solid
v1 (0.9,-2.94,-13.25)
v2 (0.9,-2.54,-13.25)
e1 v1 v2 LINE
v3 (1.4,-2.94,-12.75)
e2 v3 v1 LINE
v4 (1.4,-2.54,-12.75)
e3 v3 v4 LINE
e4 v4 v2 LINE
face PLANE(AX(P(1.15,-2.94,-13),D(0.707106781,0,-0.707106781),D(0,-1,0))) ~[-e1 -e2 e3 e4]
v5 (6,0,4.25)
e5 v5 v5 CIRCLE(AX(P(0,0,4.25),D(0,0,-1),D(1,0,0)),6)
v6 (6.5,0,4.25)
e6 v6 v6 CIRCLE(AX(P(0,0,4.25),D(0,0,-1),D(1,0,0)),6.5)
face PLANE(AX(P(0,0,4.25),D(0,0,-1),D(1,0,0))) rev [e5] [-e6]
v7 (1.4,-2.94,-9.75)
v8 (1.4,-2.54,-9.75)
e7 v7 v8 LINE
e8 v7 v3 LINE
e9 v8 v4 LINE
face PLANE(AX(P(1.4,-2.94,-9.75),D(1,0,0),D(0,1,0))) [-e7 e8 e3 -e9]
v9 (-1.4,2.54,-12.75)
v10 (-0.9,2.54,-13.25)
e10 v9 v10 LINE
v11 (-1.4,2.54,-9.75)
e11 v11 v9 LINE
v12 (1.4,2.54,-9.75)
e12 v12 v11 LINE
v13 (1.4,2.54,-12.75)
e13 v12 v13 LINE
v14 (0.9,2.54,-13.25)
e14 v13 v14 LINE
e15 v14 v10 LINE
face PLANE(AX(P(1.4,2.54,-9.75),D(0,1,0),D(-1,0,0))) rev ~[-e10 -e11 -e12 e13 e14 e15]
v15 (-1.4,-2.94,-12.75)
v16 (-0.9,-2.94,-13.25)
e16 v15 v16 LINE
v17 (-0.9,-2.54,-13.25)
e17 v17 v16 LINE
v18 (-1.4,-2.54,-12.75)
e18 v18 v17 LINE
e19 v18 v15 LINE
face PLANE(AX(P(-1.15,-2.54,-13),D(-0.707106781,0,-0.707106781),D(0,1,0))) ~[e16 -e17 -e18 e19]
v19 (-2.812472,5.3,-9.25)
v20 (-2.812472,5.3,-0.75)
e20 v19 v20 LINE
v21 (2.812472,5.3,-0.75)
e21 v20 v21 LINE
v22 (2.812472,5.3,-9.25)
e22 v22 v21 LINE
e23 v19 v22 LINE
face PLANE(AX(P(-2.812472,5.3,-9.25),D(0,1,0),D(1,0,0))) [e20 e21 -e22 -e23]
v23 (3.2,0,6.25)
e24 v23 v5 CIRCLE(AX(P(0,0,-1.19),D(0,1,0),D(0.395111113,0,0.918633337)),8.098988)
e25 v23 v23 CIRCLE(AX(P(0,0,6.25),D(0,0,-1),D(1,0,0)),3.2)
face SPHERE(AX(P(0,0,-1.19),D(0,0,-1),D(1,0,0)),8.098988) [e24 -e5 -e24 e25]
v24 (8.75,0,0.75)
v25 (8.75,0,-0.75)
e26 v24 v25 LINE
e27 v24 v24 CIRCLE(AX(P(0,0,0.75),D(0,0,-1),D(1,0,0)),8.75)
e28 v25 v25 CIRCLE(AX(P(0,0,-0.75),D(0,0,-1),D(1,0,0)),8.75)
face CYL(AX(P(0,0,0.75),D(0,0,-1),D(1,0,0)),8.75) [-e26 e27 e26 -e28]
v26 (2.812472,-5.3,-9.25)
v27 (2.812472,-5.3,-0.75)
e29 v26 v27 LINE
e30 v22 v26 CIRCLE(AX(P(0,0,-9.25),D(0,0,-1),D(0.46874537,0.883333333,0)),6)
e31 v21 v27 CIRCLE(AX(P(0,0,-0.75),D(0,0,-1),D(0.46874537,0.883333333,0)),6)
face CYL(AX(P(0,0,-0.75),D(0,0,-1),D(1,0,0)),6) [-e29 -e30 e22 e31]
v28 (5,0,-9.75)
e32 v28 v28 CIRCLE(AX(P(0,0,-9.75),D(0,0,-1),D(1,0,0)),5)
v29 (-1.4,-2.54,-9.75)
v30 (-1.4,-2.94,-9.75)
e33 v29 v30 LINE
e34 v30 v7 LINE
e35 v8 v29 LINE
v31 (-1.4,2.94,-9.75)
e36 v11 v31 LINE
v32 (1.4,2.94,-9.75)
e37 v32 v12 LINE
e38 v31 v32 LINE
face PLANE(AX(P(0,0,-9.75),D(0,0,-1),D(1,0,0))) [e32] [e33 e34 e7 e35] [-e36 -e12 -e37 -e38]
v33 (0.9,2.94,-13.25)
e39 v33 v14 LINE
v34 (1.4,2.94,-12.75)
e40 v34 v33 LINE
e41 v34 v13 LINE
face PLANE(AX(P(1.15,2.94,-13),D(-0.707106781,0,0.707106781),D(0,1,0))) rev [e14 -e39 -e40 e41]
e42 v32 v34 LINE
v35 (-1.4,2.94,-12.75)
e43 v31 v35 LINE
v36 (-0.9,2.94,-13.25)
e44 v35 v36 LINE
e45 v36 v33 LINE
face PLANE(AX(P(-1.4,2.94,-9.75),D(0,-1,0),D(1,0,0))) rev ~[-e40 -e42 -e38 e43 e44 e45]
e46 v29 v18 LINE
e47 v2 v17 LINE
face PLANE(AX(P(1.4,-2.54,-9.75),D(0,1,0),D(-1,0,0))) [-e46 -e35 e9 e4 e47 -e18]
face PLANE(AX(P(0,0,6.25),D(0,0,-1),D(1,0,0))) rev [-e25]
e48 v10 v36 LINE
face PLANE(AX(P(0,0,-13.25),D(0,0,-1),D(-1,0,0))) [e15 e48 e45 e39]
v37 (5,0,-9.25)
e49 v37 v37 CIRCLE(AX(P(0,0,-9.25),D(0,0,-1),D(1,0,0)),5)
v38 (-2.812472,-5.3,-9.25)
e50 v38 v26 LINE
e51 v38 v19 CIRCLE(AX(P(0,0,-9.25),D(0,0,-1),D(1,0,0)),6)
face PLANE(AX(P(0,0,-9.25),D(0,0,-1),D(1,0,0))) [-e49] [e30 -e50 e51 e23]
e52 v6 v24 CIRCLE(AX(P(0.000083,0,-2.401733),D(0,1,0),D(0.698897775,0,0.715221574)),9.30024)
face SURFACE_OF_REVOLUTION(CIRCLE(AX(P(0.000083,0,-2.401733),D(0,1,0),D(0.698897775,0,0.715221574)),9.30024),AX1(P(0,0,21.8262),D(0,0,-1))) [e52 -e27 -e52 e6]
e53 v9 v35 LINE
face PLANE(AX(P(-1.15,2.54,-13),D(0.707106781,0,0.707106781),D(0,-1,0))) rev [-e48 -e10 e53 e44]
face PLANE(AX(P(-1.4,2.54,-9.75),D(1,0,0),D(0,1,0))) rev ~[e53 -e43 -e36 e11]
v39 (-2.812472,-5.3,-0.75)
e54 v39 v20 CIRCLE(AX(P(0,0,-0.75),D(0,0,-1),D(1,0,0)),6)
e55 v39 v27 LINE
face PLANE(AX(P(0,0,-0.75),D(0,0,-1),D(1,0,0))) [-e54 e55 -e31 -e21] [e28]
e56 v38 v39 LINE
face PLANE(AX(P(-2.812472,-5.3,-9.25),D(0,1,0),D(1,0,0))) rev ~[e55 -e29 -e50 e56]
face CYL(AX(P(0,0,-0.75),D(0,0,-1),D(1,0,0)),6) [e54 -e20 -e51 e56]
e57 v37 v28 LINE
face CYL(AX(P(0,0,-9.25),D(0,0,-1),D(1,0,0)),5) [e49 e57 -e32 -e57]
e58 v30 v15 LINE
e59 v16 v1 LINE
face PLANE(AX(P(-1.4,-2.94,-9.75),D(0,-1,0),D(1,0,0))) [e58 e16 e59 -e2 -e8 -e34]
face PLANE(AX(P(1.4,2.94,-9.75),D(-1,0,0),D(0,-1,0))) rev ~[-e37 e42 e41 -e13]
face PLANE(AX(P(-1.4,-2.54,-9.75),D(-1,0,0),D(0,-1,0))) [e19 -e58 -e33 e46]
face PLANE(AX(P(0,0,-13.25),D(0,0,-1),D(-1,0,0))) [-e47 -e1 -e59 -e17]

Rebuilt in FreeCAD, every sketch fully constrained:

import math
import FreeCAD as App
import Part
import Sketcher

V = App.Vector
Q = App.Units.Quantity


def edges_at(feature, points):
    """Names of the edges that pass closest to the given points."""
    edges = feature.Shape.Edges
    near = lambda p: min(range(len(edges)), key=lambda i: edges[i].distToShape(Part.Vertex(*p))[0])
    return sorted({f"Edge{near(p) + 1}" for p in points})


def add_polygon(sketch, points):
    """Adds a closed chain of lines whose ends are joined by coincident constraints."""
    first, n = sketch.GeometryCount, len(points)
    for a, b in zip(points, points[1:] + points[:1]):
        sketch.addGeometry(Part.LineSegment(App.Vector(*a, 0), App.Vector(*b, 0)), False)
    for i in range(n):
        sketch.addConstraint(Sketcher.Constraint("Coincident", first + i, 2, first + (i + 1) % n, 1))

doc = App.newDocument("Part")
body = doc.addObject("PartDesign::Body", "Body")

# Sketch on XZ plane
sketch1 = doc.addObject("Sketcher::SketchObject", "Sketch")
body.addObject(sketch1)
sketch1.AttachmentSupport = (doc.XZ_Plane, [""])
sketch1.MapMode = "FlatFace"
sketch1.addGeometry([
    Part.LineSegment(V(8.75, 0.75, 0), V(8.75, -0.75, 0)),  # 0
    Part.LineSegment(V(8.75, -0.75, 0), V(6, -0.75, 0)),  # 1
    Part.LineSegment(V(6, -0.75, 0), V(6, -9.25, 0)),  # 2
    Part.LineSegment(V(6, -9.25, 0), V(5, -9.25, 0)),  # 3
    Part.LineSegment(V(5, -9.25, 0), V(5, -9.75, 0)),  # 4
    Part.LineSegment(V(5, -9.75, 0), V(0, -9.75, 0)),  # 5
    Part.LineSegment(V(0, -9.75, 0), V(0, 6.25, 0)),  # 6
    Part.LineSegment(V(0, 6.25, 0), V(3.2, 6.25, 0)),  # 7
    Part.ArcOfCircle(Part.Circle(V(0, -1.19, 0), V(0, 0, 1), 8.098988), math.radians(42.197548), math.radians(66.727096)),  # 8
    Part.LineSegment(V(6, 4.25, 0), V(6.5, 4.25, 0)),  # 9
    Part.ArcOfCircle(Part.Circle(V(0, -2.4018, 0), V(0, 0, 1), 9.300341), math.radians(19.80931), math.radians(45.661287)),  # 10
], False)
sketch1.addConstraint([
    Sketcher.Constraint("Coincident", 0, 2, 1, 1),
    Sketcher.Constraint("Coincident", 1, 2, 2, 1),
    Sketcher.Constraint("Coincident", 2, 2, 3, 1),
    Sketcher.Constraint("Coincident", 3, 2, 4, 1),
    Sketcher.Constraint("Coincident", 4, 2, 5, 1),
    Sketcher.Constraint("Coincident", 5, 2, 6, 1),
    Sketcher.Constraint("Coincident", 6, 2, 7, 1),
    Sketcher.Constraint("Coincident", 7, 2, 8, 2),
    Sketcher.Constraint("Coincident", 8, 1, 9, 1),
    Sketcher.Constraint("Coincident", 9, 2, 10, 2),
    Sketcher.Constraint("Coincident", 10, 1, 0, 1),
    Sketcher.Constraint("Vertical", 0),
    Sketcher.Constraint("Horizontal", 1),
    Sketcher.Constraint("Vertical", 2),
    Sketcher.Constraint("Horizontal", 3),
    Sketcher.Constraint("Vertical", 4),
    Sketcher.Constraint("Horizontal", 5),
    Sketcher.Constraint("Vertical", 6),
    Sketcher.Constraint("Horizontal", 7),
    Sketcher.Constraint("Horizontal", 9),
    Sketcher.Constraint("PointOnObject", 8, 3, -2),
    Sketcher.Constraint("PointOnObject", 10, 3, -2),
    Sketcher.Constraint("PointOnObject", 5, 2, -2),
    Sketcher.Constraint("Vertical", 2, 2, 8, 1),
    Sketcher.Constraint("Equal", 9, 4),
    Sketcher.Constraint("DistanceX", 5, 2, 5, 1, Q("5 mm")),
    Sketcher.Constraint("DistanceX", 9, 1, 9, 2, Q("0.5 mm")),
    Sketcher.Constraint("DistanceY", 0, 2, 0, 1, Q("1.5 mm")),
    Sketcher.Constraint("DistanceY", 2, 2, 2, 1, Q("8.5 mm")),
    Sketcher.Constraint("DistanceY", 8, 1, 7, 2, Q("2 mm")),
    Sketcher.Constraint("DistanceY", 1, 2, 8, 1, Q("5 mm")),
    Sketcher.Constraint("DistanceX", 3, 2, 3, 1, Q("1 mm")),
    Sketcher.Constraint("DistanceX", 7, 1, 7, 2, Q("3.2 mm")),
    Sketcher.Constraint("DistanceX", 1, 2, 1, 1, Q("2.75 mm")),
    Sketcher.Constraint("DistanceY", 8, 3, -1, 1, Q("1.19 mm")),
])
revolution = doc.addObject("PartDesign::Revolution", "Revolution")
body.addObject(revolution)
revolution.Profile = sketch1
revolution.ReferenceAxis = (sketch1, ["V_Axis"])
revolution.Angle = 360

# Sketch on XY plane
sketch2 = doc.addObject("Sketcher::SketchObject", "Sketch001")
body.addObject(sketch2)
sketch2.AttachmentSupport = (doc.XY_Plane, [""])
sketch2.MapMode = "FlatFace"
sketch2.AttachmentOffset = App.Placement(V(0, 0, -9.75), App.Rotation())
add_polygon(sketch2, [(1.4, -2.94), (-1.4, -2.94), (-1.4, -2.54), (1.4, -2.54)])  # lines 0-3
add_polygon(sketch2, [(-1.4, 2.54), (-1.4, 2.94), (1.4, 2.94), (1.4, 2.54)])  # lines 4-7
sketch2.addConstraint([
    Sketcher.Constraint("Horizontal", 0),
    Sketcher.Constraint("Vertical", 1),
    Sketcher.Constraint("Horizontal", 2),
    Sketcher.Constraint("Vertical", 3),
    Sketcher.Constraint("Vertical", 4),
    Sketcher.Constraint("Horizontal", 5),
    Sketcher.Constraint("Vertical", 6),
    Sketcher.Constraint("Horizontal", 7),
    Sketcher.Constraint("Symmetric", 3, 2, 4, 2, -1, 1),
    Sketcher.Constraint("Symmetric", 1, 2, 6, 2, -1, 1),
    Sketcher.Constraint("Vertical", 1, 2, 4, 2),
    Sketcher.Constraint("DistanceX", 0, 2, 0, 1, Q("2.8 mm")),
    Sketcher.Constraint("DistanceY", 1, 1, 1, 2, Q("0.4 mm")),
    Sketcher.Constraint("DistanceY", 1, 2, -1, 1, Q("2.54 mm")),
])
pad1 = doc.addObject("PartDesign::Pad", "Pad")
body.addObject(pad1)
pad1.Profile = sketch2
pad1.Length = 3.5
pad1.Reversed = True
doc.recompute()

chamfer = doc.addObject("PartDesign::Chamfer", "Chamfer")
body.addObject(chamfer)
chamfer.Base = (pad1, edges_at(pad1, [
    (1.4, -2.74, -13.25),
    (-1.4, -2.74, -13.25),
    (1.4, 2.74, -13.25),
    (-1.4, 2.74, -13.25),
]))
chamfer.Size = 0.5

# Sketch on XY plane
sketch3 = doc.addObject("Sketcher::SketchObject", "Sketch002")
body.addObject(sketch3)
sketch3.AttachmentSupport = (doc.XY_Plane, [""])
sketch3.MapMode = "FlatFace"
sketch3.AttachmentOffset = App.Placement(V(0, 0, -9.25), App.Rotation())
sketch3.addGeometry([
    Part.ArcOfCircle(Part.Circle(V(0, 0, 0), V(0, 0, 1), 6), math.radians(-117.952887), math.radians(-62.047113)),
    Part.LineSegment(V(-2.812472, -5.3, 0), V(2.812472, -5.3, 0)),
    Part.ArcOfCircle(Part.Circle(V(0, 0, 0), V(0, 0, 1), 6), math.radians(62.047113), math.radians(117.952887)),
    Part.LineSegment(V(2.812472, 5.3, 0), V(-2.812472, 5.3, 0)),
], False)
sketch3.addConstraint([
    Sketcher.Constraint("Coincident", 0, 1, 1, 1),
    Sketcher.Constraint("Coincident", 1, 2, 0, 2),
    Sketcher.Constraint("Coincident", 2, 1, 3, 1),
    Sketcher.Constraint("Coincident", 3, 2, 2, 2),
    Sketcher.Constraint("Horizontal", 1),
    Sketcher.Constraint("Horizontal", 3),
    Sketcher.Constraint("Coincident", 0, 3, -1, 1),
    Sketcher.Constraint("Coincident", 2, 3, -1, 1),
    Sketcher.Constraint("Equal", 0, 2),
    Sketcher.Constraint("Vertical", 1, 2, 2, 1),
    Sketcher.Constraint("Radius", 0, Q("6 mm")),
    Sketcher.Constraint("DistanceY", 1, 2, 2, 1, Q("10.6 mm")),
])
pocket1 = doc.addObject("PartDesign::Pocket", "Pocket")
body.addObject(pocket1)
pocket1.Profile = sketch3
pocket1.Length = 8.5
pocket1.Reversed = True

doc.recompute()
